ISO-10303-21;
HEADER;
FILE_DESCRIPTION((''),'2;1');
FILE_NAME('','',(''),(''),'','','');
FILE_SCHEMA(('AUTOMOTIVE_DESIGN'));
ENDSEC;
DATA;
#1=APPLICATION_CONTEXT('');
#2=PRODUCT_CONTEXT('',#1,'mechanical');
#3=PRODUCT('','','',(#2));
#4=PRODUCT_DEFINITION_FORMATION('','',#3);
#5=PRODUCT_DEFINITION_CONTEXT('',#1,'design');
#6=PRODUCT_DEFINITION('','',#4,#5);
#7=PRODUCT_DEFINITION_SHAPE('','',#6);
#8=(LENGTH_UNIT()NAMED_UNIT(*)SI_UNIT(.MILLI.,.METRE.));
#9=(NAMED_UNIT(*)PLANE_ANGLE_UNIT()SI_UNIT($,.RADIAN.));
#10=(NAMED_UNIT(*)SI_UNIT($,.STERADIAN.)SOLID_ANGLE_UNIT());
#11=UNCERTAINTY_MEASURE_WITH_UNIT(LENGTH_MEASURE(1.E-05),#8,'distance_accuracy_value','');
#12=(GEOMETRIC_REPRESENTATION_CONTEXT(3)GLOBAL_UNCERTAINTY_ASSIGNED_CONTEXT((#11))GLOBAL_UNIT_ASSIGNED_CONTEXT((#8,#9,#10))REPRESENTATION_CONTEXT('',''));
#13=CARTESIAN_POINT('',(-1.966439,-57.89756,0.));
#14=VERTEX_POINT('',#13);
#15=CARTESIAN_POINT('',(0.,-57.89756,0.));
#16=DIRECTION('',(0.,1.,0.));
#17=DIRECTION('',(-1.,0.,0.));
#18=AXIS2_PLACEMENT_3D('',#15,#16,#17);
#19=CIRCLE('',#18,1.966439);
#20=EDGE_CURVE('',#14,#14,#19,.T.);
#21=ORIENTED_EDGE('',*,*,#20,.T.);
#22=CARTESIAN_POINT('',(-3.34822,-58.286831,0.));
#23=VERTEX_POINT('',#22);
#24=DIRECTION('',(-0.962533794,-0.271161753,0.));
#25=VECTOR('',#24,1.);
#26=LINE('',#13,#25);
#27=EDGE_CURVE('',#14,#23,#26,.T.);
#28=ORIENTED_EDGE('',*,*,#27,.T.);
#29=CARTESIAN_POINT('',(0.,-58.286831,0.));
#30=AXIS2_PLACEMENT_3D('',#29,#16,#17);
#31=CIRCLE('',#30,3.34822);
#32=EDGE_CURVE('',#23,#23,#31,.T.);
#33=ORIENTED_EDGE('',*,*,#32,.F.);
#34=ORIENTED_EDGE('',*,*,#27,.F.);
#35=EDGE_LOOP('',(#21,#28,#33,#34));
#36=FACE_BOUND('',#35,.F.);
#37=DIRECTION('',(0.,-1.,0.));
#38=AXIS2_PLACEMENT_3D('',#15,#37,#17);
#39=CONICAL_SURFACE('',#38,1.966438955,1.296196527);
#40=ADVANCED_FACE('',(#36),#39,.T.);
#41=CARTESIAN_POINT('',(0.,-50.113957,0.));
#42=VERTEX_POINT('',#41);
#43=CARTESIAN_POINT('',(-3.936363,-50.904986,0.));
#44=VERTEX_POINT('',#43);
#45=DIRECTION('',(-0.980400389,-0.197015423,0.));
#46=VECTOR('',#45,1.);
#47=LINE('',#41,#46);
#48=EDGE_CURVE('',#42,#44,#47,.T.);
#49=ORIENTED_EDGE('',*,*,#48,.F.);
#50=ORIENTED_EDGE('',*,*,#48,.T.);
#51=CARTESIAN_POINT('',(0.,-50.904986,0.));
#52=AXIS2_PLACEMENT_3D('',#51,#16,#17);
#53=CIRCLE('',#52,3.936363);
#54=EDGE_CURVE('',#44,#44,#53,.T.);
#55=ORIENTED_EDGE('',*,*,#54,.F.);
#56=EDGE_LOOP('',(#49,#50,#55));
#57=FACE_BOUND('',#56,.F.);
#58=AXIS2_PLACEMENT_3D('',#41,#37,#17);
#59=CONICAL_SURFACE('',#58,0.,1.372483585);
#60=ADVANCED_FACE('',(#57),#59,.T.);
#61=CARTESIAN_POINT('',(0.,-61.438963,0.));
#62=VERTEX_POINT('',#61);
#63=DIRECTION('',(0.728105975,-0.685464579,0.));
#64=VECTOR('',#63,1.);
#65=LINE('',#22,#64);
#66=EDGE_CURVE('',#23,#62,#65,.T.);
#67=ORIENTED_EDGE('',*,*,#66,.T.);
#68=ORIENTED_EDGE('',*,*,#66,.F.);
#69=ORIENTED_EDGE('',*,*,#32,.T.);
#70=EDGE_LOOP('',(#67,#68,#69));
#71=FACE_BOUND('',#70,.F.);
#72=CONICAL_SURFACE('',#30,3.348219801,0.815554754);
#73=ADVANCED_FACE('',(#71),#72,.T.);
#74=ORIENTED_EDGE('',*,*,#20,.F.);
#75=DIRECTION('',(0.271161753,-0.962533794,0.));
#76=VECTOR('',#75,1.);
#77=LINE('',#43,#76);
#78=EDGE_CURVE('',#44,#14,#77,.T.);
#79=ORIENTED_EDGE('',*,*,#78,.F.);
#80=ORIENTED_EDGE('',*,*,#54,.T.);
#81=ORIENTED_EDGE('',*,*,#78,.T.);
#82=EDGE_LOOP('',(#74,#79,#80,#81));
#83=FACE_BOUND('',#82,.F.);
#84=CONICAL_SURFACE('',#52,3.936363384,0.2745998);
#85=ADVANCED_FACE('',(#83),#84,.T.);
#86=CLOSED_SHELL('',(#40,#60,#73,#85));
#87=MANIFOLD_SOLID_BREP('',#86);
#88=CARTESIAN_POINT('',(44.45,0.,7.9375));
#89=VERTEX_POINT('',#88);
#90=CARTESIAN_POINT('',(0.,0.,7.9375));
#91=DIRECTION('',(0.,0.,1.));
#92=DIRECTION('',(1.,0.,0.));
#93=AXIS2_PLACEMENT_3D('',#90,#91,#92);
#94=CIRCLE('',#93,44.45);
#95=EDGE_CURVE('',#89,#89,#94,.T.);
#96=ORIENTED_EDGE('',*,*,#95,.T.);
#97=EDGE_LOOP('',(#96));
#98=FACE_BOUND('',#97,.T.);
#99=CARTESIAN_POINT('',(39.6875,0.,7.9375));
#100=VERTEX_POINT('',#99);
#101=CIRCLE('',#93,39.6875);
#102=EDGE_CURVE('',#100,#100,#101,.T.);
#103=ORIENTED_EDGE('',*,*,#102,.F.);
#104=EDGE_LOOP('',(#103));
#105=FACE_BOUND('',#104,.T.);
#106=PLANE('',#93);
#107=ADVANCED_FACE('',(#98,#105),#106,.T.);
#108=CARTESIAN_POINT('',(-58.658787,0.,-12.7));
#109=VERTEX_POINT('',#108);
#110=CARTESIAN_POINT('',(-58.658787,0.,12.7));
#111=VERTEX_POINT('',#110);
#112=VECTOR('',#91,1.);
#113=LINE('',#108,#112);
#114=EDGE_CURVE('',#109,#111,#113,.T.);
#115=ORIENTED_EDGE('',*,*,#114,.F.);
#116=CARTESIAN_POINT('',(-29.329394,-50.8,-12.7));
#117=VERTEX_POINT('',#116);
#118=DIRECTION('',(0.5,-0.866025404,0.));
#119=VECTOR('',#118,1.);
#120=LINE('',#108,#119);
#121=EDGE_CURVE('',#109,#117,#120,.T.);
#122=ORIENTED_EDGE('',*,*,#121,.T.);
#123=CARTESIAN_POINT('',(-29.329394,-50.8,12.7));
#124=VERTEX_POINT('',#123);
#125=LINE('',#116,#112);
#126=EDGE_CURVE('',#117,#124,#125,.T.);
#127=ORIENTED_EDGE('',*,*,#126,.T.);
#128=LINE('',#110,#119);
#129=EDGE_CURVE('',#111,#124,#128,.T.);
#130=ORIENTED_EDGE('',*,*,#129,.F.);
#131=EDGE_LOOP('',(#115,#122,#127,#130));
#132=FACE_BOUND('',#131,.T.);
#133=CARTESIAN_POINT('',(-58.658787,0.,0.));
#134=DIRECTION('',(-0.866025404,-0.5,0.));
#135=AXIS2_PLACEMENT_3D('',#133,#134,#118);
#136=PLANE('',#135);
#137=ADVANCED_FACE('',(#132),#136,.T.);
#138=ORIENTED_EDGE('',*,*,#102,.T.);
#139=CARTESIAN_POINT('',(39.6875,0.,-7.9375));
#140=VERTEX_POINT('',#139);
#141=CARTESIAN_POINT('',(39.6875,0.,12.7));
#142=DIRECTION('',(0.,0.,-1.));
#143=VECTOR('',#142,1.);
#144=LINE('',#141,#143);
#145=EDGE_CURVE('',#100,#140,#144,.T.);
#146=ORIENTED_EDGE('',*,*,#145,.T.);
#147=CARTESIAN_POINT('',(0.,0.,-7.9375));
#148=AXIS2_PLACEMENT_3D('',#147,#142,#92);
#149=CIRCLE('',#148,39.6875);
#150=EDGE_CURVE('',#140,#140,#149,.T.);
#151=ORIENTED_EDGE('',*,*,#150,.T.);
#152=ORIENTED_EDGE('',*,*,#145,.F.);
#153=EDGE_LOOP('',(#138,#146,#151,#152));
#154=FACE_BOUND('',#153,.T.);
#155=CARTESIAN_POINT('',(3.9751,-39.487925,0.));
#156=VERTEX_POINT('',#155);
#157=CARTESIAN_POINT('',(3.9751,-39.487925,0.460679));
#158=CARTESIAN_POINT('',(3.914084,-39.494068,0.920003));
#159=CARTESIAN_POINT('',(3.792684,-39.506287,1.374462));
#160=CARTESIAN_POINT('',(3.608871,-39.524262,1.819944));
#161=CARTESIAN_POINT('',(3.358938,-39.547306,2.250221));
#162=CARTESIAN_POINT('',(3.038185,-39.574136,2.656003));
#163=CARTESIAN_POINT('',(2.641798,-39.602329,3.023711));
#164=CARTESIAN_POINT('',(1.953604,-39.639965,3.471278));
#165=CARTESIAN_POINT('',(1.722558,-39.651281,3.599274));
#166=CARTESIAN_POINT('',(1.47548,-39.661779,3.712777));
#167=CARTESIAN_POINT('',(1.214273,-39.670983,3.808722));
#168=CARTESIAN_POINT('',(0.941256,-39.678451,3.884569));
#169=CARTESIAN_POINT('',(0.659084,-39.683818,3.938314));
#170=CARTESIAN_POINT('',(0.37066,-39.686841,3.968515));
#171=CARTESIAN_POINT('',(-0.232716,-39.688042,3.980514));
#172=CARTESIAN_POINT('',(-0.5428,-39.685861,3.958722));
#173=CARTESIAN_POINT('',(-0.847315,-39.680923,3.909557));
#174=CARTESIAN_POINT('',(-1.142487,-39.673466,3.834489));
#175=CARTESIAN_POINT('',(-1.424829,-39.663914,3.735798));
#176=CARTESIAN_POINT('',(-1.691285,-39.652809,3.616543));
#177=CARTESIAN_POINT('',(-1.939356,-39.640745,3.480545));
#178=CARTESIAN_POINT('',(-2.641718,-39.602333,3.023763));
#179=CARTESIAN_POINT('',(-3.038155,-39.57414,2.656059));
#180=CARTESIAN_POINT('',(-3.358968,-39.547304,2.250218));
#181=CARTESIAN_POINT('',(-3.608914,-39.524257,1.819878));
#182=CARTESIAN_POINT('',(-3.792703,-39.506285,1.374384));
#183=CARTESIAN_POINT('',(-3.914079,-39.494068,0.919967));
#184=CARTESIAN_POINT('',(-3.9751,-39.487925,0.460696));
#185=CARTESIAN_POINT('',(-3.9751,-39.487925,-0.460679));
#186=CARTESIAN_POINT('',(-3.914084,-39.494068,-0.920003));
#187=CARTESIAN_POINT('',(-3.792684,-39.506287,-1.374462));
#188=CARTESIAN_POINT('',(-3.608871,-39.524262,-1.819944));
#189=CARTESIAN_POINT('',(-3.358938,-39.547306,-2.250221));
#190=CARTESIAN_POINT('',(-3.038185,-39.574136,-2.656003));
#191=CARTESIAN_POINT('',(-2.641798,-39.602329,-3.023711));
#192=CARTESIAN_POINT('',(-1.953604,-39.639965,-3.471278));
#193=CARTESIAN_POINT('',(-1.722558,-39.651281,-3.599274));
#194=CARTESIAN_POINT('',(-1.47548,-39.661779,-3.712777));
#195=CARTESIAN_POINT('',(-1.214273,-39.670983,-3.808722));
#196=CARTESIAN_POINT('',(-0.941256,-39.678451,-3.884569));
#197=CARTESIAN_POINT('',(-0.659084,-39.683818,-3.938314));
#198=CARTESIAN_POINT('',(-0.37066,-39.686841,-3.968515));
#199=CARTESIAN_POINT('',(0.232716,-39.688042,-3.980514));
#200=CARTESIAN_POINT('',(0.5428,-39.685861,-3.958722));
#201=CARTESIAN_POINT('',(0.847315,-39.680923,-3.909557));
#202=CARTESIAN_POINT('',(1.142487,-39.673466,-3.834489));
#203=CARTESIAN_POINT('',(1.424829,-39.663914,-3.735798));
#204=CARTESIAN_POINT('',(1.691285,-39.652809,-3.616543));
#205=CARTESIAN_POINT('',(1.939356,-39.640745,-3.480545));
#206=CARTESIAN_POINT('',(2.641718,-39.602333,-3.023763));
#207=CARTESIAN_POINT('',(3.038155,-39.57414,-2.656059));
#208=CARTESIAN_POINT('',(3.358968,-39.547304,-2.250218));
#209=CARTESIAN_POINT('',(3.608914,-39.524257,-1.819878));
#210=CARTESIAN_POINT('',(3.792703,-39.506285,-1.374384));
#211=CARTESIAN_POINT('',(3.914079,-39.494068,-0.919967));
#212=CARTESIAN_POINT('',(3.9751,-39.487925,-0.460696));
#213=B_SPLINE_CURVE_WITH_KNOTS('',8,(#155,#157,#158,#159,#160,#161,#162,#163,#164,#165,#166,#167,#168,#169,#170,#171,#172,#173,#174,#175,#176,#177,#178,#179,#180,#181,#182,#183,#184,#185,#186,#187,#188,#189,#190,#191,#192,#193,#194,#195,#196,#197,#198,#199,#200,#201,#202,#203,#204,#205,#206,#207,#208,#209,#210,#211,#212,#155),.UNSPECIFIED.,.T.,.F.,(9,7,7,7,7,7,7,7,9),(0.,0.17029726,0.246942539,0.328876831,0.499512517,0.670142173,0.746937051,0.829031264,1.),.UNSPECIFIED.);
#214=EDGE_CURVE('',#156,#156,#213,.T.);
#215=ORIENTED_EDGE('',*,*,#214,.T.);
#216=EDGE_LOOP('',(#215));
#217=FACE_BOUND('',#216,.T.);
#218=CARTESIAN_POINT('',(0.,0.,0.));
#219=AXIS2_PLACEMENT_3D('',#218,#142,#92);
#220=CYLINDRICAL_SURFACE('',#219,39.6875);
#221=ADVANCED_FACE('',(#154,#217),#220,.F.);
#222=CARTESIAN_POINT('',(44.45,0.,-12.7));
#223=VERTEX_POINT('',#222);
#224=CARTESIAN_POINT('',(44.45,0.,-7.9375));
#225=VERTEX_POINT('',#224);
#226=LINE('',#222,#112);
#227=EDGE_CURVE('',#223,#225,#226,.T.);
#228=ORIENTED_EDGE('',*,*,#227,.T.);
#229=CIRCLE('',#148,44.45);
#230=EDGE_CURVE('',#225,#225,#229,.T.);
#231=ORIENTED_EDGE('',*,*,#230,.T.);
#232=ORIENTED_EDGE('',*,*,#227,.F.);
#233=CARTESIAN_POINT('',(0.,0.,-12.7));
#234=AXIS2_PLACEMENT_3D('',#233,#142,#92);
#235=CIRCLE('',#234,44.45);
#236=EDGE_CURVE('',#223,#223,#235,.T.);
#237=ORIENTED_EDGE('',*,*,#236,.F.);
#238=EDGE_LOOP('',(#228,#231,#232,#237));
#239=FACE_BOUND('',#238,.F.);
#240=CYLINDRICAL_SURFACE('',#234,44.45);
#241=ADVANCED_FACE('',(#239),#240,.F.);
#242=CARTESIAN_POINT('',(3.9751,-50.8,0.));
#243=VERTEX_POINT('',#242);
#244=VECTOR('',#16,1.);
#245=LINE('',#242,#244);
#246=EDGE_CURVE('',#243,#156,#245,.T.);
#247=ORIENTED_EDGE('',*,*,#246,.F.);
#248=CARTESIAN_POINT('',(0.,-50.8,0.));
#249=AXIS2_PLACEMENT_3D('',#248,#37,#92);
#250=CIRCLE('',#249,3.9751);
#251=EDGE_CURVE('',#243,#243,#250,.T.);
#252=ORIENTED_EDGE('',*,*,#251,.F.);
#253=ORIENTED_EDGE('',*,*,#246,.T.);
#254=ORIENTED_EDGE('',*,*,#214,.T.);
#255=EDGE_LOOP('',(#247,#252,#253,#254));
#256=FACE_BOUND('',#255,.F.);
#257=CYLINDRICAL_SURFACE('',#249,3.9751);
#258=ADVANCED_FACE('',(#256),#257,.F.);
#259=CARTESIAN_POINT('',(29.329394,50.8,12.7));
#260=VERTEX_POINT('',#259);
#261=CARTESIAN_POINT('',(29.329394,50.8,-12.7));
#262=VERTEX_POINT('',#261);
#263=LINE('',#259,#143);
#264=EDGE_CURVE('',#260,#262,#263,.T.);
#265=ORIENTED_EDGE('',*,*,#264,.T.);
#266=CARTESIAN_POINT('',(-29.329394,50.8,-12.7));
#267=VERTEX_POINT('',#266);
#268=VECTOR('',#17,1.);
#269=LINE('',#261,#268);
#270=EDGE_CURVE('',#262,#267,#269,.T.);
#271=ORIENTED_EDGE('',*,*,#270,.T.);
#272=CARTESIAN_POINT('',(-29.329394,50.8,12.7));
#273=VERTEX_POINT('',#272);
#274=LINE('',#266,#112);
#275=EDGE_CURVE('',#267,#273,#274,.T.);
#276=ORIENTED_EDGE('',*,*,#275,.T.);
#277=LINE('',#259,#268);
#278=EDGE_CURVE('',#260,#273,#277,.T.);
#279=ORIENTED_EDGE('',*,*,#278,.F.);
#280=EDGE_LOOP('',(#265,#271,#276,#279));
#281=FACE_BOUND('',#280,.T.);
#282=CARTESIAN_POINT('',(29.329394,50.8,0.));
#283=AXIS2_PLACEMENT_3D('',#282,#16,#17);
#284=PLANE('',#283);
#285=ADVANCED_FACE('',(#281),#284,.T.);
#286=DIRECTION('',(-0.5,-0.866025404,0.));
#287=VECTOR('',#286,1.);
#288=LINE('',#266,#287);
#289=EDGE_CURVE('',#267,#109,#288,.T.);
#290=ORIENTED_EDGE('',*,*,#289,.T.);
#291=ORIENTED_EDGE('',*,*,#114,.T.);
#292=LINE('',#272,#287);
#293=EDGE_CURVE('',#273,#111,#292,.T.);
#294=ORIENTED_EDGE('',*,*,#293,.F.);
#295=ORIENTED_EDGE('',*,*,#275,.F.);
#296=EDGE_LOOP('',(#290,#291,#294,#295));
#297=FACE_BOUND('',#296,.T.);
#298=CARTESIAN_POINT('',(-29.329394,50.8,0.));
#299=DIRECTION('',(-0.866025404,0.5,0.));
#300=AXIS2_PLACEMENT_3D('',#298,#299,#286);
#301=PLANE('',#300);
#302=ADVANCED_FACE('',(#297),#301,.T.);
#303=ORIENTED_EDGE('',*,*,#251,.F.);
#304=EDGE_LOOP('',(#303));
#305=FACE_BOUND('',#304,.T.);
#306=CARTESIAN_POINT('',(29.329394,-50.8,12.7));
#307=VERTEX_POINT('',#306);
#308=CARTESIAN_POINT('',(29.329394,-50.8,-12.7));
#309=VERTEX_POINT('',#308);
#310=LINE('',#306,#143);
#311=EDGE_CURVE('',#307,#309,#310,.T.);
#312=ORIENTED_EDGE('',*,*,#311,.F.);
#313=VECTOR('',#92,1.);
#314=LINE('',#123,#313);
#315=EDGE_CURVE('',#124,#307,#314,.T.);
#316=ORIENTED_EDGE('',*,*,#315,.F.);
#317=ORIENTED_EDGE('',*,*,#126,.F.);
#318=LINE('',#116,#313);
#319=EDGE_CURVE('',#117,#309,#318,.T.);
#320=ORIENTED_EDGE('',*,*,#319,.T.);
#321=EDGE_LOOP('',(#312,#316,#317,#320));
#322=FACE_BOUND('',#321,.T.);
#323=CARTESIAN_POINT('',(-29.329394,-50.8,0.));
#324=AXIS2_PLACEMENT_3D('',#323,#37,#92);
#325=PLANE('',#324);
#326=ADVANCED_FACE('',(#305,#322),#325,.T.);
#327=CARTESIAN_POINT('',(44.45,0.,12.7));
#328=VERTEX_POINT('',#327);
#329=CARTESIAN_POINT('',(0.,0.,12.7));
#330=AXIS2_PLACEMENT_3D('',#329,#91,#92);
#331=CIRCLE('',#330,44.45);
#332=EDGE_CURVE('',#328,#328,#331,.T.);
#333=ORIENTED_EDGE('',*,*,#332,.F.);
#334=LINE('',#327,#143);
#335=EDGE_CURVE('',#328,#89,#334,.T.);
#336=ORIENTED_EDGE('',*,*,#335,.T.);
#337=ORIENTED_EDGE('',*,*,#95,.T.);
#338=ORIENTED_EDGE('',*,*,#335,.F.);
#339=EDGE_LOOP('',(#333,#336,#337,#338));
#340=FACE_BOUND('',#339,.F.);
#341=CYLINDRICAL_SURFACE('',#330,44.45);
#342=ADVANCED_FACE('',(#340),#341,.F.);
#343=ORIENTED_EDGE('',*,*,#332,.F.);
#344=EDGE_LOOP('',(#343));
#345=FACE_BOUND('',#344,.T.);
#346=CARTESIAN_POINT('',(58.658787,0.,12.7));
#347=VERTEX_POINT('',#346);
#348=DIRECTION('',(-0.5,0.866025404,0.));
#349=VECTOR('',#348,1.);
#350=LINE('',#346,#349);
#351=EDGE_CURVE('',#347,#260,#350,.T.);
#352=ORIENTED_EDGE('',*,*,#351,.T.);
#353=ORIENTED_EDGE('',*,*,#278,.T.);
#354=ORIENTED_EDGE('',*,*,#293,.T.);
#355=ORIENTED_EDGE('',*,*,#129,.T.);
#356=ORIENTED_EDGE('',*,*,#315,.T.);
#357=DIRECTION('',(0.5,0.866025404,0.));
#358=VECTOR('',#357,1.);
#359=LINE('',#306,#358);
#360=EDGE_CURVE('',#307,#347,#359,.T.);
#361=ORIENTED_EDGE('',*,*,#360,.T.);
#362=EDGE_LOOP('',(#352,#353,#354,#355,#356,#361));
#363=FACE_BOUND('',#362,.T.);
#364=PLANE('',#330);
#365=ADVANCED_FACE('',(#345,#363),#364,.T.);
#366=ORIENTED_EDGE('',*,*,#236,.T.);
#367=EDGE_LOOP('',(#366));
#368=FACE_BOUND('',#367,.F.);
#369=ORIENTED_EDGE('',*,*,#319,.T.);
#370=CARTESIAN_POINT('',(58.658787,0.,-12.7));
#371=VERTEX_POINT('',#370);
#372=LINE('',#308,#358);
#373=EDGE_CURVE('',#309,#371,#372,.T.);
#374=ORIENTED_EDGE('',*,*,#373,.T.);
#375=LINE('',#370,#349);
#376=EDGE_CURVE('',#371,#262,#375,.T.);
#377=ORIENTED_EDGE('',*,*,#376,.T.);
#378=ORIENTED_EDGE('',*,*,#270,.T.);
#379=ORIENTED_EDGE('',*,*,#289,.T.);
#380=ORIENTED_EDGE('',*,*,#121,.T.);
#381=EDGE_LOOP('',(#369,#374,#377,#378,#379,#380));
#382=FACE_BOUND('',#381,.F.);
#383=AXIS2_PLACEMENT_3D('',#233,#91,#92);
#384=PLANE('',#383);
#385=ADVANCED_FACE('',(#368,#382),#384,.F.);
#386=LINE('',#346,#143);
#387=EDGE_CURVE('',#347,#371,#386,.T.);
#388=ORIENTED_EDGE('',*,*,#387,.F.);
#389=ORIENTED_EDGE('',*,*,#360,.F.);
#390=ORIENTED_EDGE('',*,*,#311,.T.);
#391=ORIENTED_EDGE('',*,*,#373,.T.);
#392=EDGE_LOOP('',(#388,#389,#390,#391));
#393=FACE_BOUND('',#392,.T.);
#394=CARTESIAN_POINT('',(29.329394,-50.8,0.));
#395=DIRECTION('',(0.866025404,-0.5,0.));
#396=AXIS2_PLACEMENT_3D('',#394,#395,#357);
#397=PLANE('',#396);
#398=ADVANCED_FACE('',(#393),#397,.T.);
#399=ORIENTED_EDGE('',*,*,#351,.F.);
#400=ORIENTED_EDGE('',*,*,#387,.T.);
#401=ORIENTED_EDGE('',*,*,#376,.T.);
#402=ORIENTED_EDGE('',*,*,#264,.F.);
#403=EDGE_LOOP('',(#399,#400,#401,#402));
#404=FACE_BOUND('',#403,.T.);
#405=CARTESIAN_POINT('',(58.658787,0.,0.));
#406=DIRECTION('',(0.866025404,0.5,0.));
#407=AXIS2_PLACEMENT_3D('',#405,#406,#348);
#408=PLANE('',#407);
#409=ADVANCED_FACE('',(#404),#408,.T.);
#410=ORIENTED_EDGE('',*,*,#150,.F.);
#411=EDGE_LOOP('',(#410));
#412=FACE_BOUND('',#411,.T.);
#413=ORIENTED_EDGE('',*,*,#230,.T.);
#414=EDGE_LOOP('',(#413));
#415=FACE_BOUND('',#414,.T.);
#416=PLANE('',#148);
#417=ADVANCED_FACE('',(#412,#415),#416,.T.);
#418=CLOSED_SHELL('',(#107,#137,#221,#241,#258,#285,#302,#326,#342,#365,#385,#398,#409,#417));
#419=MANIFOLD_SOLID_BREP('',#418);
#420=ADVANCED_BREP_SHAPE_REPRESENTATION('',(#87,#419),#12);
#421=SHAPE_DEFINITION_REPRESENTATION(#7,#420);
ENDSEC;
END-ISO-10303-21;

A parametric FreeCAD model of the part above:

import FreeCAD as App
import Part
import Sketcher
from FreeCAD import Vector
Q = App.Units.Quantity


def add_polygon(sketch, points):
    """Adds a closed chain of lines whose ends are joined by coincident constraints."""
    first, n = sketch.GeometryCount, len(points)
    for a, b in zip(points, points[1:] + points[:1]):
        sketch.addGeometry(Part.LineSegment(App.Vector(*a, 0), App.Vector(*b, 0)), False)
    for i in range(n):
        sketch.addConstraint(Sketcher.Constraint("Coincident", first + i, 2, first + (i + 1) % n, 1))

doc = App.newDocument("Part")
body = doc.addObject("PartDesign::Body", "Body")

# Sketch on XY plane
sketch1 = body.newObject("Sketcher::SketchObject", "Sketch")
sketch1.AttachmentSupport = (doc.getObject("XY_Plane"), [""])
sketch1.MapMode = "FlatFace"
add_polygon(sketch1, [(29, 51), (-29, 51), (-59, 0), (-29, -51), (29, -51), (59, 0)])  # lines 0-5
sketch1.addGeometry(Part.Circle(Vector(0, 0, 0), Vector(0, 0, 1), 40), False)  # 6
sketch1.addConstraint([
    Sketcher.Constraint("Horizontal", 0),
    Sketcher.Constraint("Horizontal", 3),
    Sketcher.Constraint("Coincident", 6, 3, -1, 1),
    Sketcher.Constraint("Symmetric", 0, 2, 3, 2, -1, 1),
    Sketcher.Constraint("Symmetric", 1, 2, 4, 2, -1, 1),
    Sketcher.Constraint("PointOnObject", 1, 2, -1),
    Sketcher.Constraint("Parallel", 2, 5),
    Sketcher.Constraint("Vertical", 0, 2, 2, 2),
    Sketcher.Constraint("Diameter", 6, Q("3.125 in")),
    Sketcher.Constraint("DistanceY", -1, 1, 0, 2, Q("2 in")),
    Sketcher.Constraint("Angle", 1, Q("-120 deg")),
    Sketcher.Constraint("DistanceX", 0, 2, 0, 1, 58.658787),
])
pad1 = body.newObject("PartDesign::Pad", "Pad")
pad1.Profile = sketch1
pad1.Length = Q("1 in")
pad1.Midplane = True

# Sketch on XY plane
sketch2 = body.newObject("Sketcher::SketchObject", "Sketch001")
sketch2.AttachmentSupport = (doc.getObject("XY_Plane"), [""])
sketch2.MapMode = "FlatFace"
sketch2.AttachmentOffset = App.Placement(Vector(0, 0, 0.5 * 25.4), App.Rotation())
sketch2.addGeometry([
    Part.Circle(Vector(0, 0, 0), Vector(0, 0, 1), 44),
    Part.Circle(Vector(0, 0, 0), Vector(0, 0, 1), 40),
], False)
sketch2.addConstraint([
    Sketcher.Constraint("Coincident", 0, 3, -1, 1),
    Sketcher.Constraint("Coincident", 1, 3, -1, 1),
    Sketcher.Constraint("Diameter", 0, Q("3.5 in")),
    Sketcher.Constraint("Diameter", 1, Q("3.125 in")),
])
pocket1 = body.newObject("PartDesign::Pocket", "Pocket")
pocket1.Profile = sketch2
pocket1.Length = Q("0.1875 in")

# Sketch on XY plane
sketch3 = body.newObject("Sketcher::SketchObject", "Sketch002")
sketch3.AttachmentSupport = (doc.getObject("XY_Plane"), [""])
sketch3.MapMode = "FlatFace"
sketch3.AttachmentOffset = App.Placement(Vector(0, 0, -0.5 * 25.4), App.Rotation())
sketch3.addGeometry([
    Part.Circle(Vector(0, 0, 0), Vector(0, 0, 1), 44),
    Part.Circle(Vector(0, 0, 0), Vector(0, 0, 1), 40),
], False)
sketch3.addConstraint([
    Sketcher.Constraint("Coincident", 0, 3, -1, 1),
    Sketcher.Constraint("Coincident", 1, 3, -1, 1),
    Sketcher.Constraint("Diameter", 0, Q("3.5 in")),
    Sketcher.Constraint("Diameter", 1, Q("3.125 in")),
])
pocket2 = body.newObject("PartDesign::Pocket", "Pocket001")
pocket2.Profile = sketch3
pocket2.Length = Q("0.1875 in")
pocket2.Reversed = True

# Sketch on XZ plane
sketch4 = body.newObject("Sketcher::SketchObject", "Sketch003")
sketch4.AttachmentSupport = (doc.getObject("XZ_Plane"), [""])
sketch4.MapMode = "FlatFace"
sketch4.AttachmentOffset = App.Placement(Vector(0, 0, 2 * 25.4), App.Rotation())
sketch4.addGeometry(Part.Circle(Vector(0, 0, 0), Vector(0, 0, 1), 4), False)
sketch4.addConstraint([
    Sketcher.Constraint("Coincident", 0, 3, -1, 1),
    Sketcher.Constraint("Diameter", 0, Q("0.313 in")),
])
pocket3 = body.newObject("PartDesign::Pocket", "Pocket002")
pocket3.Profile = sketch4
pocket3.Length = 11.313075
body2 = doc.addObject("PartDesign::Body", "Body001")

# Sketch on XY plane
sketch5 = body2.newObject("Sketcher::SketchObject", "Sketch004")
sketch5.AttachmentSupport = (doc.getObject("XY_Plane001"), [""])
sketch5.MapMode = "FlatFace"
add_polygon(sketch5, [(0, -50.1), (-3.9, -50.9), (-2, -57.9), (-3.3, -58.3), (0, -61.4)])  # lines 0-4
sketch5.addConstraint([
    Sketcher.Constraint("Vertical", 4),
    Sketcher.Constraint("PointOnObject", 3, 2, -2),
    Sketcher.Constraint("Perpendicular", 1, 2),
    Sketcher.Constraint("DistanceY", 4, 1, 4, 2, 11.325005),
    Sketcher.Constraint("DistanceX", 1, 2, -1, 1, 1.966439),
    Sketcher.Constraint("DistanceY", 1, 2, -1, 1, 57.89756),
    Sketcher.Constraint("DistanceX", 2, 2, -1, 1, 3.34822),
    Sketcher.Constraint("DistanceY", 2, 2, -1, 1, 58.286831),
    Sketcher.Constraint("DistanceY", 3, 2, 2, 2, 3.152132),
    Sketcher.Constraint("DistanceY", 0, 2, 4, 2, 0.791028),
])
revolution = body2.newObject("PartDesign::Revolution", "Revolution")
revolution.Profile = sketch5
revolution.ReferenceAxis = (sketch5, ["V_Axis"])
revolution.Angle = 360

doc.recompute()
